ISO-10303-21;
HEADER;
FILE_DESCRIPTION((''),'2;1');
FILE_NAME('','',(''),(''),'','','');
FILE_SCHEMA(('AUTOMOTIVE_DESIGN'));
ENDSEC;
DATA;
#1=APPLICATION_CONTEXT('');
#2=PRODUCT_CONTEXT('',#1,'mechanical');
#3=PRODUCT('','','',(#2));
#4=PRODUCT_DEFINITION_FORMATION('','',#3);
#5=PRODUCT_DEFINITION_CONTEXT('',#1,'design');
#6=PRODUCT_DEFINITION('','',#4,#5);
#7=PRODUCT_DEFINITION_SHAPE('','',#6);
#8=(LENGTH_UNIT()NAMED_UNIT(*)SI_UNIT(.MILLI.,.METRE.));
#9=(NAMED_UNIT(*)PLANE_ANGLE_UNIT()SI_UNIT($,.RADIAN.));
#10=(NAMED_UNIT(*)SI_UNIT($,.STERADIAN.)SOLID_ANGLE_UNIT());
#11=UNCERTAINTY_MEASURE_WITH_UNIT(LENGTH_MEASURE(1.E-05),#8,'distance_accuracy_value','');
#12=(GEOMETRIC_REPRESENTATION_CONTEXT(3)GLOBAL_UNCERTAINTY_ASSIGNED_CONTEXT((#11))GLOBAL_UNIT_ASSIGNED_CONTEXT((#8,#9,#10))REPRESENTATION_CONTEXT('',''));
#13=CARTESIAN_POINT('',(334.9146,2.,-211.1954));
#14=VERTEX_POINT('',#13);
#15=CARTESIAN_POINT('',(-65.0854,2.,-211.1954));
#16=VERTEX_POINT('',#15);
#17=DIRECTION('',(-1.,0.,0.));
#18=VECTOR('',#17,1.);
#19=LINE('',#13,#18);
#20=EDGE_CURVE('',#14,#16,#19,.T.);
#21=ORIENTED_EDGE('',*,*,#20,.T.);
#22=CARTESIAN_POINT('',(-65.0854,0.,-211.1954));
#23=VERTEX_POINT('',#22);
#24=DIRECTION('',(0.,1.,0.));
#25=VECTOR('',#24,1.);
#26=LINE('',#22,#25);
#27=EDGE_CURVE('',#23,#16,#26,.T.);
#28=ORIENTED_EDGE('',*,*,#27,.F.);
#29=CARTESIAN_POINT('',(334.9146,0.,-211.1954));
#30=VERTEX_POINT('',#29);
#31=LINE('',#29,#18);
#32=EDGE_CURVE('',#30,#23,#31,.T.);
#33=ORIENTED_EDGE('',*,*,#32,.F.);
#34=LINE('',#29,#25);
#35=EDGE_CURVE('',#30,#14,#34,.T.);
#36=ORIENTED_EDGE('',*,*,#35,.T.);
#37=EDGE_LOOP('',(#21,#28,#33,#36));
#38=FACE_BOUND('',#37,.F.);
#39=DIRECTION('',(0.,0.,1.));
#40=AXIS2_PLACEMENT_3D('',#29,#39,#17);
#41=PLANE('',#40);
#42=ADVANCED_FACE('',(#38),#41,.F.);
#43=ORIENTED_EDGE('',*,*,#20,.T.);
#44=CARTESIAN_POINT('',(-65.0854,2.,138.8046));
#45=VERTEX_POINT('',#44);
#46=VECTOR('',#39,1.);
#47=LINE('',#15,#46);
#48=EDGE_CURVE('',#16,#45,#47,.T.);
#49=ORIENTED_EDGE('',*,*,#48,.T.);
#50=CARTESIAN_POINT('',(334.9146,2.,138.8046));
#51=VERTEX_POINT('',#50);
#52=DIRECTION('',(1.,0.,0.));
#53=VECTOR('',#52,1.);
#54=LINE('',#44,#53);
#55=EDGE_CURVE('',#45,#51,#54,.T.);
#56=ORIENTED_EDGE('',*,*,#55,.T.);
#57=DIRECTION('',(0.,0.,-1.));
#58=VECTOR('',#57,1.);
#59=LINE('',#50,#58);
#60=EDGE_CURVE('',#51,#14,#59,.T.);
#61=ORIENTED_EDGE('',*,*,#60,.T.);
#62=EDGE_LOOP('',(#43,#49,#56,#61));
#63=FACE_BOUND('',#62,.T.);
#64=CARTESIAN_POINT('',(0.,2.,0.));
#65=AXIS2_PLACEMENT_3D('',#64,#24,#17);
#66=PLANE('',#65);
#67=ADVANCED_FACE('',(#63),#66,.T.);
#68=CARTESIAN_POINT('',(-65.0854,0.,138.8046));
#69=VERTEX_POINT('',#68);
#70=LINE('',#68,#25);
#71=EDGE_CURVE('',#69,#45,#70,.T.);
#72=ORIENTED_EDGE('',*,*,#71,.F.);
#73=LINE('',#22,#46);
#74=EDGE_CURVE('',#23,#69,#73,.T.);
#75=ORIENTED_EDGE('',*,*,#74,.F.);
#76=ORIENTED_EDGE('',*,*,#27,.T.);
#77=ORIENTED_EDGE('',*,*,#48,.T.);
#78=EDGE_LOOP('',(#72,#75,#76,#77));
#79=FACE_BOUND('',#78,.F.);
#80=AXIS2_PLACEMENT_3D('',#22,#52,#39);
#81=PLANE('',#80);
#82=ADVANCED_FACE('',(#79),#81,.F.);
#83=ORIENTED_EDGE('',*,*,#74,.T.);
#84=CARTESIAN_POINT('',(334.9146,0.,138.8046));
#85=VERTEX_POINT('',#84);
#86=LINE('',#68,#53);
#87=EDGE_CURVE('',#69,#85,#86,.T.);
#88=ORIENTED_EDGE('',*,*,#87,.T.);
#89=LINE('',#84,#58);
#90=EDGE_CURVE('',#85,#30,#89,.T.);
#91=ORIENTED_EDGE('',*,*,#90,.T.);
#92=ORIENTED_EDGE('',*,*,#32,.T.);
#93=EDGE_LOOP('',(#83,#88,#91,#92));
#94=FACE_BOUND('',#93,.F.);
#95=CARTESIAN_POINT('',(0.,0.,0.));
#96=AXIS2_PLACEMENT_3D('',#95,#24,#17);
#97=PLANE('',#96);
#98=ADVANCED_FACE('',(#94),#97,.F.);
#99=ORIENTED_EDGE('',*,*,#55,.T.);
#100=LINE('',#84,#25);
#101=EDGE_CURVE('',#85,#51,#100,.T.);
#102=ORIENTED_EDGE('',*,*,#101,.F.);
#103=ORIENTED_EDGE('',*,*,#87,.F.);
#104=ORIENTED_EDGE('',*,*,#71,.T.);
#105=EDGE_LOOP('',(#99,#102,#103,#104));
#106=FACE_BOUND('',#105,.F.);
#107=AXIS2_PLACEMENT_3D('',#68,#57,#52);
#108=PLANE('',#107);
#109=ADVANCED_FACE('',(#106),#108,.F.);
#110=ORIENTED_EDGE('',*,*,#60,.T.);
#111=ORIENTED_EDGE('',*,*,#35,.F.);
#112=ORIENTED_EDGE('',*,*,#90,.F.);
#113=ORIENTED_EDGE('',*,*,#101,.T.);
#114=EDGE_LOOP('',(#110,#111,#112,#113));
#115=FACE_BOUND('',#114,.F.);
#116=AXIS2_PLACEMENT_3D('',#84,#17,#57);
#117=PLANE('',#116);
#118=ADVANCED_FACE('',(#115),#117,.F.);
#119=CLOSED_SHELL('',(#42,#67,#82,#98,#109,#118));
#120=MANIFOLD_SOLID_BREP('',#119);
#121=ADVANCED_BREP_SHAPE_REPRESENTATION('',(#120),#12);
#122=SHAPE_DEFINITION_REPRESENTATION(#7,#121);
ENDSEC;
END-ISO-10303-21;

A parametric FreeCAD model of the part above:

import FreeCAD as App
import Part
import Sketcher

V = App.Vector


def add_polygon(sketch, points):
    """Adds a closed chain of lines whose ends are joined by coincident constraints."""
    first, n = sketch.GeometryCount, len(points)
    for a, b in zip(points, points[1:] + points[:1]):
        sketch.addGeometry(Part.LineSegment(App.Vector(*a, 0), App.Vector(*b, 0)), False)
    for i in range(n):
        sketch.addConstraint(Sketcher.Constraint("Coincident", first + i, 2, first + (i + 1) % n, 1))

doc = App.newDocument("Part")
params = doc.addObject("Spreadsheet::Sheet", "Params")
for row, (alias, value) in enumerate([
    ("sketch1_width", "400 mm"),
    ("sketch1_height", "350 mm"),
    ("pad1_length", "2 mm"),
], start=1):
    params.set(f"A{row}", alias)
    params.set(f"B{row}", "=" + value)
    params.setAlias(f"B{row}", alias)

body = doc.addObject("PartDesign::Body", "Body")

# Sketch on XZ plane
sketch1 = body.newObject("Sketcher::SketchObject", "Sketch")
sketch1.AttachmentSupport = (doc.getObject("XZ_Plane"), [""])
sketch1.MapMode = "FlatFace"
add_polygon(sketch1, [(-65, -211), (-65, 139), (335, 139), (335, -211)])  # lines 0-3
sketch1.addConstraint([
    Sketcher.Constraint("Vertical", 0),
    Sketcher.Constraint("Horizontal", 1),
    Sketcher.Constraint("Vertical", 2),
    Sketcher.Constraint("Horizontal", 3),
    Sketcher.Constraint("DistanceX", 1, 1, 1, 2, 400.0),
    Sketcher.Constraint("DistanceY", 0, 1, 0, 2, 350.0),
    Sketcher.Constraint("DistanceX", 0, 2, -1, 1, 65.0854),
    Sketcher.Constraint("DistanceY", -1, 1, 0, 2, 138.8046),
])
sketch1.setExpression("Constraints[8]", "Params.sketch1_width")
sketch1.setExpression("Constraints[9]", "Params.sketch1_height")
pad1 = body.newObject("PartDesign::Pad", "Pad")
pad1.Profile = sketch1
pad1.setExpression("Length", "Params.pad1_length")
pad1.Reversed = True

doc.recompute()
